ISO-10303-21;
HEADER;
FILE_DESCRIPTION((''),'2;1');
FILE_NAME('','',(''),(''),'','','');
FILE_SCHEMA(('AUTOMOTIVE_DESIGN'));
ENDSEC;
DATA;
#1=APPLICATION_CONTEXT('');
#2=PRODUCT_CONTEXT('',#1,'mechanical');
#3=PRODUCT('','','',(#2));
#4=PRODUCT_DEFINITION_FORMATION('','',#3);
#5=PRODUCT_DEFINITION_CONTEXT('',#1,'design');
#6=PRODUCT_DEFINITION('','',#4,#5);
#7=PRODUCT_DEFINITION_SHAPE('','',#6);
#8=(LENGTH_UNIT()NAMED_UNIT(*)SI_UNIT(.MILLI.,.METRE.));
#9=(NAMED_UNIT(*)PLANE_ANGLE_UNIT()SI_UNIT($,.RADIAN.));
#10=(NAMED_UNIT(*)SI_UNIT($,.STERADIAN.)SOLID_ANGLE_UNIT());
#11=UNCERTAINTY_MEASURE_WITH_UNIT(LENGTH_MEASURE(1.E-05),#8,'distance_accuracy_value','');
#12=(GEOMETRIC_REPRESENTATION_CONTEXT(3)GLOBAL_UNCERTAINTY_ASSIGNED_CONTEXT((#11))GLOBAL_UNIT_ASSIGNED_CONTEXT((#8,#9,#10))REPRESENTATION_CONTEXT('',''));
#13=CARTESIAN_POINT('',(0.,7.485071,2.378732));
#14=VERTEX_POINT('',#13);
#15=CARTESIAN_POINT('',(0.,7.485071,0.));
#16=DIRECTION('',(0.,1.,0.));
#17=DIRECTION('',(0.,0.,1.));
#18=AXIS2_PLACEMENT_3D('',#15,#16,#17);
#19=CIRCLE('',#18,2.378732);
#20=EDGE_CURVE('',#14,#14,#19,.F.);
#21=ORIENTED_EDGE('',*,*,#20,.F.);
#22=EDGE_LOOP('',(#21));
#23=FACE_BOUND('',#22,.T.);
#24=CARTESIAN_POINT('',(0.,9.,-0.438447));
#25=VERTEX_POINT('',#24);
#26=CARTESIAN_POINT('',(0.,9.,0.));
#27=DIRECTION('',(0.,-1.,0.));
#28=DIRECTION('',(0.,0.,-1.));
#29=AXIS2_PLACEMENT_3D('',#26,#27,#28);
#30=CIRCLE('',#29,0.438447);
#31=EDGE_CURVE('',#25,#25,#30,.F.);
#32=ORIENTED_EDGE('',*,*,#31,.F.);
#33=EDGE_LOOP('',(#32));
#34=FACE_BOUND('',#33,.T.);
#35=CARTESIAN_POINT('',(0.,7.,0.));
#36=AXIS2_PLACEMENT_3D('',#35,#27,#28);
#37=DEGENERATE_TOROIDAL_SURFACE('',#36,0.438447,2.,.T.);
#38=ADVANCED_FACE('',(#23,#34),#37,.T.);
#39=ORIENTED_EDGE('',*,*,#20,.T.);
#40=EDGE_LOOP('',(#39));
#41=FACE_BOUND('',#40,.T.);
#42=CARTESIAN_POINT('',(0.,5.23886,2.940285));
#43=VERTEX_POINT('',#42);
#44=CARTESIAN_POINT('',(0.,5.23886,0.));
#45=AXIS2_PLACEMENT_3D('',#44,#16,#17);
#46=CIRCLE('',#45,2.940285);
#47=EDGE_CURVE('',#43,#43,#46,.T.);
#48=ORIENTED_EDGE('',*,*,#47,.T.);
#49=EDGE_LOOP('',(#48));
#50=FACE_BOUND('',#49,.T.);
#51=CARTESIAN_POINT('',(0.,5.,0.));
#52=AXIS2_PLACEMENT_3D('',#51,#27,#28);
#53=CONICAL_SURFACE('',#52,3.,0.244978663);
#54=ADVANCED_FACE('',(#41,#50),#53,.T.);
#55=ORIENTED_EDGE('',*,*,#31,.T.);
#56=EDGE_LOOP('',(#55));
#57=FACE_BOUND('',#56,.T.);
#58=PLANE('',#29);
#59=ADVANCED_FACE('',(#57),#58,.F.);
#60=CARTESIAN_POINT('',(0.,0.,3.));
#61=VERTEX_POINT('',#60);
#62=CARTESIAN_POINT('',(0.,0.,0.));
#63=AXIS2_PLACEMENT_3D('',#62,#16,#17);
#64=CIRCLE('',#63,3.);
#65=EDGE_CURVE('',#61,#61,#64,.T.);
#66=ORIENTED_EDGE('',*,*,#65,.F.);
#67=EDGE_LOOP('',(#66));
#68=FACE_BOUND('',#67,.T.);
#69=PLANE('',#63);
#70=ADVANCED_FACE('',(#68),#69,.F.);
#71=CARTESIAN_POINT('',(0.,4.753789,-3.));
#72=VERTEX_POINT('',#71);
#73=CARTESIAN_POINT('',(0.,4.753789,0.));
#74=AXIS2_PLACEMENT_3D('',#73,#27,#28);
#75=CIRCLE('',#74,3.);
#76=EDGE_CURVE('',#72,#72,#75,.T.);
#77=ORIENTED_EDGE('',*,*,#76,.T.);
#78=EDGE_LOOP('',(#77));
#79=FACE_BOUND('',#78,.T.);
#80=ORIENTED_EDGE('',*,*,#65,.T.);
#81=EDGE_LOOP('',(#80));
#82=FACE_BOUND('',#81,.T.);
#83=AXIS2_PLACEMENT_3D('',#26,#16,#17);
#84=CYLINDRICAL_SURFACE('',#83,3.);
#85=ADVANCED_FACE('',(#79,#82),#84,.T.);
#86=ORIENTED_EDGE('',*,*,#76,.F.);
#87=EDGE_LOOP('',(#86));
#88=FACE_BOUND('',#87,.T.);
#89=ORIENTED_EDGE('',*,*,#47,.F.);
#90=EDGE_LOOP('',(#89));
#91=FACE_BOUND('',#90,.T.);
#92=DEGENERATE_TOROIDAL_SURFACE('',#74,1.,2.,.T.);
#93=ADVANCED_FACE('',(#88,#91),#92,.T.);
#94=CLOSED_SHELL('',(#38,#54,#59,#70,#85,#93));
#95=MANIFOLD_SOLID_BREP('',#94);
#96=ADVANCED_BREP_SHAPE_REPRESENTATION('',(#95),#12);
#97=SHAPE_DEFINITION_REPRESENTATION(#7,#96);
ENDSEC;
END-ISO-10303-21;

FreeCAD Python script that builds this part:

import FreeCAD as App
import Part
import Sketcher
from FreeCAD import Vector


def edges_at(feature, points):
    """Names of the edges that pass closest to the given points."""
    edges = feature.Shape.Edges
    near = lambda p: min(range(len(edges)), key=lambda i: edges[i].distToShape(Part.Vertex(*p))[0])
    return sorted({f"Edge{near(p) + 1}" for p in points})

doc = App.newDocument("Part")
body = doc.addObject("PartDesign::Body", "Body")

sketch1 = body.newObject("Sketcher::SketchObject", "Sketch")
sketch1.AttachmentSupport = (doc.getObject("XY_Plane"), [""])
sketch1.MapMode = "FlatFace"
sketch1.addGeometry([
    Part.LineSegment(Vector(0, 0, 0), Vector(3, 0, 0)),
    Part.LineSegment(Vector(3, 0, 0), Vector(3, 5, 0)),
    Part.LineSegment(Vector(3, 5, 0), Vector(2, 9, 0)),
    Part.LineSegment(Vector(2, 9, 0), Vector(0, 9, 0)),
    Part.LineSegment(Vector(0, 9, 0), Vector(0, 0, 0)),
], False)
sketch1.addConstraint([
    Sketcher.Constraint("Coincident", 0, 2, 1, 1),
    Sketcher.Constraint("Coincident", 1, 2, 2, 1),
    Sketcher.Constraint("Coincident", 2, 2, 3, 1),
    Sketcher.Constraint("Coincident", 3, 2, 4, 1),
    Sketcher.Constraint("Coincident", 4, 2, 0, 1),
    Sketcher.Constraint("Horizontal", 0),
    Sketcher.Constraint("Vertical", 1),
    Sketcher.Constraint("Horizontal", 3),
    Sketcher.Constraint("Vertical", 4),
    Sketcher.Constraint("Coincident", 4, 2, -1, 1),
    Sketcher.Constraint("DistanceX", 0, 1, 0, 2, 3.0),
    Sketcher.Constraint("DistanceX", 3, 2, 3, 1, 2.0),
    Sketcher.Constraint("DistanceY", 1, 1, 1, 2, 5.0),
    Sketcher.Constraint("DistanceY", 4, 2, 4, 1, 9.0),
])
revolution = body.newObject("PartDesign::Revolution", "Revolution")
revolution.Profile = sketch1
revolution.ReferenceAxis = (sketch1, ["V_Axis"])
revolution.Angle = 360
doc.recompute()

fillet = body.newObject("PartDesign::Fillet", "Fillet")
fillet.Base = (revolution, edges_at(revolution, [(-2, 9, 0)]))
fillet.Radius = 2
doc.recompute()

fillet2 = body.newObject("PartDesign::Fillet", "Fillet001")
fillet2.Base = (fillet, edges_at(fillet, [(-3, 5, 0)]))
fillet2.Radius = 2

doc.recompute()
